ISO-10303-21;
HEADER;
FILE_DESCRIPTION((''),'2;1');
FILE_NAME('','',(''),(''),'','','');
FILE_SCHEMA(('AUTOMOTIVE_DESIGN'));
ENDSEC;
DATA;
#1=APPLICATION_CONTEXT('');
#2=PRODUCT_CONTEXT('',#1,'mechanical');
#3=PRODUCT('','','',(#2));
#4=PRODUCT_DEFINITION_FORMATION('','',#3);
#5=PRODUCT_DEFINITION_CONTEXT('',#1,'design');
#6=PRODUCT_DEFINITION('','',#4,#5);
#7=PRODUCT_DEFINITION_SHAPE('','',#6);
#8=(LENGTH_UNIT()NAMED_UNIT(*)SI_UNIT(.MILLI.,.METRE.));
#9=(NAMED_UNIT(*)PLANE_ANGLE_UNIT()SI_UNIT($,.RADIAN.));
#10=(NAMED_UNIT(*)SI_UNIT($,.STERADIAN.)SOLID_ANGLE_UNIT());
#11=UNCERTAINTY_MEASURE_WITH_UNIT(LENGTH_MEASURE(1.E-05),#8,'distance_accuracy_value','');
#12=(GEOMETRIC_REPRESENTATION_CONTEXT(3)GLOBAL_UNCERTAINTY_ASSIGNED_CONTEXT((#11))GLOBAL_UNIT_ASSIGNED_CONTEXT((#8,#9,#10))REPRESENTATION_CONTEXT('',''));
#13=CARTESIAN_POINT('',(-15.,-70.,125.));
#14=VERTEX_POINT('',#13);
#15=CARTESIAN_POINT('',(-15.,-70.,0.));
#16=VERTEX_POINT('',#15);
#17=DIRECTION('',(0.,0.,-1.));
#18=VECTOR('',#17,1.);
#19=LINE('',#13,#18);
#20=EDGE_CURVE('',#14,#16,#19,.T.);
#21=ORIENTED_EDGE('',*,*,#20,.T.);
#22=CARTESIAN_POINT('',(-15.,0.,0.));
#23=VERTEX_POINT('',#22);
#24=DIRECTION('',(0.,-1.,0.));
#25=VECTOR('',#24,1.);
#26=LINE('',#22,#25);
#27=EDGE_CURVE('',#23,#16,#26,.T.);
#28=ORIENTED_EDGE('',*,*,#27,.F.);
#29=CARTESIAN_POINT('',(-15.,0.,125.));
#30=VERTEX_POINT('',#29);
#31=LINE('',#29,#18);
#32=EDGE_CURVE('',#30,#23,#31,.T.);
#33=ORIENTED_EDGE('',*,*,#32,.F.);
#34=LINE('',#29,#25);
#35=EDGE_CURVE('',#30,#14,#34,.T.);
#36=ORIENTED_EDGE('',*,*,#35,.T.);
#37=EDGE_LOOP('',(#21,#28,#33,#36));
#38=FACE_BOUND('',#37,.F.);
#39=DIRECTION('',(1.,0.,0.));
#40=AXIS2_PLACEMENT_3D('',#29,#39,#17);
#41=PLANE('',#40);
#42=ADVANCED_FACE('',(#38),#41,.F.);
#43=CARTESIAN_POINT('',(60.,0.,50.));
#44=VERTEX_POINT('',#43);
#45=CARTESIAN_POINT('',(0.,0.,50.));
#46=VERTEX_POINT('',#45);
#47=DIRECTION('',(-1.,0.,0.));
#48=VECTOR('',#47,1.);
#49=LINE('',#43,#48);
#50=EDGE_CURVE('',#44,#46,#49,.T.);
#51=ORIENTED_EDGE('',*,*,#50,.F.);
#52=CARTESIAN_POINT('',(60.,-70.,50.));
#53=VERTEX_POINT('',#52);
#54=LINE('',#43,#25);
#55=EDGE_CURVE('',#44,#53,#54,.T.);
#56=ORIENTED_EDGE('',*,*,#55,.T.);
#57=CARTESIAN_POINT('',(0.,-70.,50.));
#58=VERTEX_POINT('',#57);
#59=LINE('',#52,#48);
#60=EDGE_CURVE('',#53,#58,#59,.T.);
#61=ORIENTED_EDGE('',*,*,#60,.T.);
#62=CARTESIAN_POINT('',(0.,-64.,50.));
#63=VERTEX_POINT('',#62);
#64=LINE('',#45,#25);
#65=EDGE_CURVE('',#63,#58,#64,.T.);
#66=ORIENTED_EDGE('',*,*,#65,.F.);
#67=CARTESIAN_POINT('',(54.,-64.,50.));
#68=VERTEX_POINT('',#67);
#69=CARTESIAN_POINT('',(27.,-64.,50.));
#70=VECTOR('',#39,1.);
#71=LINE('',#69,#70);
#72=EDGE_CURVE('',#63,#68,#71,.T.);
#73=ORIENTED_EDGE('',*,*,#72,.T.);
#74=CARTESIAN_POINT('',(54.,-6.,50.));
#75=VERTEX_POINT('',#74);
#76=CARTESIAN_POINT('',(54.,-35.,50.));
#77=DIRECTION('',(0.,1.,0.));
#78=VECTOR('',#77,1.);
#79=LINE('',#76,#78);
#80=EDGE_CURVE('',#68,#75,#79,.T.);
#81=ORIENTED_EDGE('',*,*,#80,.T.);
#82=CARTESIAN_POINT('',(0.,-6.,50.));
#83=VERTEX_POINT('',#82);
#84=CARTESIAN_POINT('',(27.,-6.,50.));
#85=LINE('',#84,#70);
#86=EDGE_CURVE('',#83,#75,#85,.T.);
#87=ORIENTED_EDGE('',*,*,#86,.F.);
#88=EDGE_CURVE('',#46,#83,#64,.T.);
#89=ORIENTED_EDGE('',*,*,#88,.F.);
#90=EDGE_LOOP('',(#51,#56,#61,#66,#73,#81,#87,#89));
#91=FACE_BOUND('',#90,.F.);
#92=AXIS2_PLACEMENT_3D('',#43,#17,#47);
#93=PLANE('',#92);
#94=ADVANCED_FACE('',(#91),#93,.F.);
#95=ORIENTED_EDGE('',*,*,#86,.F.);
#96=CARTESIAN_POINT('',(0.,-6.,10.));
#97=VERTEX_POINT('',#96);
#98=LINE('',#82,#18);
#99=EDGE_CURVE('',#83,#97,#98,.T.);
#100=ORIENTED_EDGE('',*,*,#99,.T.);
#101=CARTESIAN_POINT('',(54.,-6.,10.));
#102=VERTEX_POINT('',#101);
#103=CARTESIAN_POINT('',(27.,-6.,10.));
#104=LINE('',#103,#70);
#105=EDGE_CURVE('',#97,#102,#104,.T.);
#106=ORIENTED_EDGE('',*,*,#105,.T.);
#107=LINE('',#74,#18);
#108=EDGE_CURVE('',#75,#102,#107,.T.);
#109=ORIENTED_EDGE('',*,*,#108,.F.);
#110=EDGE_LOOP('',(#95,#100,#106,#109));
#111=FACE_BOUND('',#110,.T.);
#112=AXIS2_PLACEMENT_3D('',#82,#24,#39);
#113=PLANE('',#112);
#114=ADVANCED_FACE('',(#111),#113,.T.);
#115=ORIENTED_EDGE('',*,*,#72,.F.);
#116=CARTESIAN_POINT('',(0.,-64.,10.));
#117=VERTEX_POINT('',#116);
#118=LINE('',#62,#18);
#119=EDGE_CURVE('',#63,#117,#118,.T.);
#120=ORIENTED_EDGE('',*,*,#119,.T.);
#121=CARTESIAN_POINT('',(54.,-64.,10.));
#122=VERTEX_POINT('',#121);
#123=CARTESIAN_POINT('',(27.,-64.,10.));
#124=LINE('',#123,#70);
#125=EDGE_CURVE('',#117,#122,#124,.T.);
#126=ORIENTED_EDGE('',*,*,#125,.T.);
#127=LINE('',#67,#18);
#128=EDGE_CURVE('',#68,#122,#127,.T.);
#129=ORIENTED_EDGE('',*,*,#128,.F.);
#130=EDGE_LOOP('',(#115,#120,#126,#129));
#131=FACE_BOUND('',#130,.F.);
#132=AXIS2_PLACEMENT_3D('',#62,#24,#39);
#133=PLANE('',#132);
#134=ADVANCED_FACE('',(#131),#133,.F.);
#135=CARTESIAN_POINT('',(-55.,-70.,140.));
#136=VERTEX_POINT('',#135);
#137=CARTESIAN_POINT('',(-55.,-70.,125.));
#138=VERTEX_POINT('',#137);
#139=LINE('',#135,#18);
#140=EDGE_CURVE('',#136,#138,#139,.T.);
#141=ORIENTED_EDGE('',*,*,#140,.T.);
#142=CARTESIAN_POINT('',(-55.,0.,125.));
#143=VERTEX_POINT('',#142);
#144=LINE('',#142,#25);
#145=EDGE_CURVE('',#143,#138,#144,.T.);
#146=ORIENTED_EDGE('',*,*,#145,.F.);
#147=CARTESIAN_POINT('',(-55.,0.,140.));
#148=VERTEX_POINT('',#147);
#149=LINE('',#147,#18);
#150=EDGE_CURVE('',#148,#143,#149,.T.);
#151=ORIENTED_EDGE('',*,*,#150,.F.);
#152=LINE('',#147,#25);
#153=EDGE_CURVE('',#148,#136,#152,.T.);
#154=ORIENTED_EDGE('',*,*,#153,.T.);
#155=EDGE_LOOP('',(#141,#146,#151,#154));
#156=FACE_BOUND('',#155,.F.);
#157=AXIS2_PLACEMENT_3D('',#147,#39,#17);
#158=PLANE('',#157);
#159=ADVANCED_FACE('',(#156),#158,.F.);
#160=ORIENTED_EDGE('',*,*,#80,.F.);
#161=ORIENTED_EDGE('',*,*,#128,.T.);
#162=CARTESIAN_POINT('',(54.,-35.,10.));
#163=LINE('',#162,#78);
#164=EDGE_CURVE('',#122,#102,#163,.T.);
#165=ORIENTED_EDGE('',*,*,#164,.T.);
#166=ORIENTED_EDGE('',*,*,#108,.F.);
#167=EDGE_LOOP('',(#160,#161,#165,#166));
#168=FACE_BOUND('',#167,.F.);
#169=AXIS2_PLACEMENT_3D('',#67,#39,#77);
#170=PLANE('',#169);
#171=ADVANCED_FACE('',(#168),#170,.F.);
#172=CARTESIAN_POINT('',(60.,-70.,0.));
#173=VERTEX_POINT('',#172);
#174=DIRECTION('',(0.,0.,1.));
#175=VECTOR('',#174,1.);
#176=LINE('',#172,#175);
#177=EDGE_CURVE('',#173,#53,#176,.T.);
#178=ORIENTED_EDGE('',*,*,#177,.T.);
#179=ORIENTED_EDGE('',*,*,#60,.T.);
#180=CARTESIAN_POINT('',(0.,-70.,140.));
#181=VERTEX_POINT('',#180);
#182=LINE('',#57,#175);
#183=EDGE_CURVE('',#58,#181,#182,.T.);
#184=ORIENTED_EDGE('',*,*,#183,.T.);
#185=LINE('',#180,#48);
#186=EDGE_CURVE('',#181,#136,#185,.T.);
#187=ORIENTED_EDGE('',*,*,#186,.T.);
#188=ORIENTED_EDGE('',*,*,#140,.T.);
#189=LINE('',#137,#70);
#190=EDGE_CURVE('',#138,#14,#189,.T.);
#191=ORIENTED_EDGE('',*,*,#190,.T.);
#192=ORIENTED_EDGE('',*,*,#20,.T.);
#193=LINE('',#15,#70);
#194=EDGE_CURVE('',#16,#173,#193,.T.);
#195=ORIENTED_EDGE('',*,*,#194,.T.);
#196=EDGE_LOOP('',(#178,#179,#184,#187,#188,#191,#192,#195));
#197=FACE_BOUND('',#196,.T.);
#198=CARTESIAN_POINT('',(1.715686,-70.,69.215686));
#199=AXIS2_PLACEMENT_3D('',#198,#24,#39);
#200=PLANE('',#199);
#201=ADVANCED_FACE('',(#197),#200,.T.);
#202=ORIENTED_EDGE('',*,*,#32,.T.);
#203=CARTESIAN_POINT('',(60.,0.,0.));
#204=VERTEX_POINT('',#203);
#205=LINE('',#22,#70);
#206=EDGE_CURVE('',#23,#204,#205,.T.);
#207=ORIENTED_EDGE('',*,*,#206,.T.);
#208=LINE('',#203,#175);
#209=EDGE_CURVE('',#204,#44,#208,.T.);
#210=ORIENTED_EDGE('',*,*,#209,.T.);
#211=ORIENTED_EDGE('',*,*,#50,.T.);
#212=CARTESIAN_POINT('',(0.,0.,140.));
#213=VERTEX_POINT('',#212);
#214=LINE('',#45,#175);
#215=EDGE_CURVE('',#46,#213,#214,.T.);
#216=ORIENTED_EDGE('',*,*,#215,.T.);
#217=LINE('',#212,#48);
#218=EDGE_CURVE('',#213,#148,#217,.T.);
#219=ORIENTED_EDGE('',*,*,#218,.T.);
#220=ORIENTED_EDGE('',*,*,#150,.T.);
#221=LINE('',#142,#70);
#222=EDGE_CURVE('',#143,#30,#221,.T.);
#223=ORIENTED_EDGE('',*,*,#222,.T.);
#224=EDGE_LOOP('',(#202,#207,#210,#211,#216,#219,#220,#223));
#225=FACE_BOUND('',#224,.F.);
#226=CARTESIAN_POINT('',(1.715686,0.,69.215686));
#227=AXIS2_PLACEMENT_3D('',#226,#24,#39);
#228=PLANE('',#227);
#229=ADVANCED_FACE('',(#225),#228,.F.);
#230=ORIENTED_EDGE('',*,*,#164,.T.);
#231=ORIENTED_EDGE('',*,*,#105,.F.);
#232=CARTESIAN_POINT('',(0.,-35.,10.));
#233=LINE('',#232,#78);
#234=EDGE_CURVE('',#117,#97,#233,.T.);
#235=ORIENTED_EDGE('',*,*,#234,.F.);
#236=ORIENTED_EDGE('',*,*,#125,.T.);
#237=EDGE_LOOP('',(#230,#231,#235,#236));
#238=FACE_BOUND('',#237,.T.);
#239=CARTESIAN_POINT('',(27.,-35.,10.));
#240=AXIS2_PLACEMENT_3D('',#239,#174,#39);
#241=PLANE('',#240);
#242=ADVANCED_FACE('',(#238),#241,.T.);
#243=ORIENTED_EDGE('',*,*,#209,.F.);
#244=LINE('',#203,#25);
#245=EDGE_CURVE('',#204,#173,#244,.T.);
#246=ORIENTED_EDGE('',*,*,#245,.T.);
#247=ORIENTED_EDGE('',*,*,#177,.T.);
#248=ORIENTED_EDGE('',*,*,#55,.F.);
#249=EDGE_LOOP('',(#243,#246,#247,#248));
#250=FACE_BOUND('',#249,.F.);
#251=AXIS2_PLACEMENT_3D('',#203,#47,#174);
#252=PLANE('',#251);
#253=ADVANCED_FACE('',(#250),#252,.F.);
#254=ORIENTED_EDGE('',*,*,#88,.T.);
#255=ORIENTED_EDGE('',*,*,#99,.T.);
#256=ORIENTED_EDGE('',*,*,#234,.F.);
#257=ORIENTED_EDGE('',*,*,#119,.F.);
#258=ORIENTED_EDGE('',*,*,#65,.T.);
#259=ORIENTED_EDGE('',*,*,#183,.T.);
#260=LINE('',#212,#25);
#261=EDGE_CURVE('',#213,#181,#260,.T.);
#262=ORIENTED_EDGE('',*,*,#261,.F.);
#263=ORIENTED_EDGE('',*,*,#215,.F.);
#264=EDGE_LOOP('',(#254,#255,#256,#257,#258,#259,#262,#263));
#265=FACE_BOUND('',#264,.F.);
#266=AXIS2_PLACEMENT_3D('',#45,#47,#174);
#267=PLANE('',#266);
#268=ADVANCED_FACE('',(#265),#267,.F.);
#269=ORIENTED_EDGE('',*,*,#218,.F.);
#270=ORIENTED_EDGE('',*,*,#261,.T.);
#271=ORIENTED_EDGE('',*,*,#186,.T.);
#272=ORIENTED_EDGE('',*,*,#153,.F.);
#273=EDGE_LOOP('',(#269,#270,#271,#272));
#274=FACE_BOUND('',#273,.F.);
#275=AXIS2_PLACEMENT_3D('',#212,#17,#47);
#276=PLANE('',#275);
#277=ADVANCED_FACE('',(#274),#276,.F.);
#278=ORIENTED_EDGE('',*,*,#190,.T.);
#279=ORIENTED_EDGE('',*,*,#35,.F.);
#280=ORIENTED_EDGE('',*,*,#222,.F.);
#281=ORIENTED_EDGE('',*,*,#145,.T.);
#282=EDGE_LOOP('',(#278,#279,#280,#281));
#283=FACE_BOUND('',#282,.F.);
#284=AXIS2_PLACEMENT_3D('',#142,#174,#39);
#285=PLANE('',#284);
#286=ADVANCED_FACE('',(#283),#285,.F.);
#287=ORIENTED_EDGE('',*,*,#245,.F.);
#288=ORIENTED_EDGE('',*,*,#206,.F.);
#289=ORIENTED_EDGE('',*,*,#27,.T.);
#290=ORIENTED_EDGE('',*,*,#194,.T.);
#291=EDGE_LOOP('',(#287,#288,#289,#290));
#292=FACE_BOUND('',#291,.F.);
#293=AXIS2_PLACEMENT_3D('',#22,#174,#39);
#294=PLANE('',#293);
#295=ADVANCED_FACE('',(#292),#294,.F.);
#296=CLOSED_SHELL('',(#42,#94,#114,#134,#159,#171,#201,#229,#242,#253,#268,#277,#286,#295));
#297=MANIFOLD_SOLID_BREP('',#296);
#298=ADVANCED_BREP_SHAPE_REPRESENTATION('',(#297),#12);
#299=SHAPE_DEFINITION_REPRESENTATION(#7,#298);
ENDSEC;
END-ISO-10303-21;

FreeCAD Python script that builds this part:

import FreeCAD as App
import Part
import Sketcher
from FreeCAD import Vector


def add_polygon(sketch, points):
    """Adds a closed chain of lines whose ends are joined by coincident constraints."""
    first, n = sketch.GeometryCount, len(points)
    for a, b in zip(points, points[1:] + points[:1]):
        sketch.addGeometry(Part.LineSegment(App.Vector(*a, 0), App.Vector(*b, 0)), False)
    for i in range(n):
        sketch.addConstraint(Sketcher.Constraint("Coincident", first + i, 2, first + (i + 1) % n, 1))

doc = App.newDocument("Part")
body = doc.addObject("PartDesign::Body", "Body")

# Sketch on XZ plane
sketch1 = body.newObject("Sketcher::SketchObject", "Sketch")
sketch1.AttachmentSupport = (doc.getObject("XZ_Plane"), [""])
sketch1.MapMode = "FlatFace"
add_polygon(sketch1, [(-15, 0), (60, 0), (60, 50), (0, 50), (0, 140), (-55, 140), (-55, 125), (-15, 125)])  # lines 0-7
sketch1.addConstraint(Sketcher.Constraint("Horizontal", 0))
sketch1.addConstraint(Sketcher.Constraint("Vertical", 1))
sketch1.addConstraint(Sketcher.Constraint("Horizontal", 2))
sketch1.addConstraint(Sketcher.Constraint("Vertical", 3))
sketch1.addConstraint(Sketcher.Constraint("Horizontal", 4))
sketch1.addConstraint(Sketcher.Constraint("Vertical", 5))
sketch1.addConstraint(Sketcher.Constraint("Horizontal", 6))
sketch1.addConstraint(Sketcher.Constraint("Vertical", 7))
sketch1.addConstraint(Sketcher.Constraint("PointOnObject", 0, 2, -1))
sketch1.addConstraint(Sketcher.Constraint("PointOnObject", 2, 2, -2))
sketch1.addConstraint(Sketcher.Constraint("DistanceX", 0, 1, 0, 2, 75.0))
sketch1.addConstraint(Sketcher.Constraint("DistanceX", 2, 2, 2, 1, 60.0))
sketch1.addConstraint(Sketcher.Constraint("DistanceX", 4, 2, 4, 1, 55.0))
sketch1.addConstraint(Sketcher.Constraint("DistanceY", 1, 1, 1, 2, 50.0))
sketch1.addConstraint(Sketcher.Constraint("DistanceY", 3, 1, 3, 2, 90.0))
sketch1.addConstraint(Sketcher.Constraint("DistanceY", 5, 2, 5, 1, 15.0))
pad1 = body.newObject("PartDesign::Pad", "Pad")
pad1.Profile = sketch1
pad1.Length = 70

# Sketch on XY plane
sketch2 = body.newObject("Sketcher::SketchObject", "Sketch001")
sketch2.AttachmentSupport = (doc.getObject("XY_Plane"), [""])
sketch2.MapMode = "FlatFace"
sketch2.AttachmentOffset = App.Placement(Vector(0, 0, 50), App.Rotation())
add_polygon(sketch2, [(0, -6), (0, -64), (54, -64), (54, -6)])  # lines 0-3
sketch2.addConstraint(Sketcher.Constraint("Vertical", 0))
sketch2.addConstraint(Sketcher.Constraint("Horizontal", 1))
sketch2.addConstraint(Sketcher.Constraint("Vertical", 2))
sketch2.addConstraint(Sketcher.Constraint("Horizontal", 3))
sketch2.addConstraint(Sketcher.Constraint("PointOnObject", 0, 2, -2))
sketch2.addConstraint(Sketcher.Constraint("DistanceX", 1, 1, 1, 2, 54.0))
sketch2.addConstraint(Sketcher.Constraint("DistanceY", 0, 2, 0, 1, 58.0))
sketch2.addConstraint(Sketcher.Constraint("DistanceY", 0, 2, -1, 1, 64.0))
pocket1 = body.newObject("PartDesign::Pocket", "Pocket")
pocket1.Profile = sketch2
pocket1.Length = 40

doc.recompute()
